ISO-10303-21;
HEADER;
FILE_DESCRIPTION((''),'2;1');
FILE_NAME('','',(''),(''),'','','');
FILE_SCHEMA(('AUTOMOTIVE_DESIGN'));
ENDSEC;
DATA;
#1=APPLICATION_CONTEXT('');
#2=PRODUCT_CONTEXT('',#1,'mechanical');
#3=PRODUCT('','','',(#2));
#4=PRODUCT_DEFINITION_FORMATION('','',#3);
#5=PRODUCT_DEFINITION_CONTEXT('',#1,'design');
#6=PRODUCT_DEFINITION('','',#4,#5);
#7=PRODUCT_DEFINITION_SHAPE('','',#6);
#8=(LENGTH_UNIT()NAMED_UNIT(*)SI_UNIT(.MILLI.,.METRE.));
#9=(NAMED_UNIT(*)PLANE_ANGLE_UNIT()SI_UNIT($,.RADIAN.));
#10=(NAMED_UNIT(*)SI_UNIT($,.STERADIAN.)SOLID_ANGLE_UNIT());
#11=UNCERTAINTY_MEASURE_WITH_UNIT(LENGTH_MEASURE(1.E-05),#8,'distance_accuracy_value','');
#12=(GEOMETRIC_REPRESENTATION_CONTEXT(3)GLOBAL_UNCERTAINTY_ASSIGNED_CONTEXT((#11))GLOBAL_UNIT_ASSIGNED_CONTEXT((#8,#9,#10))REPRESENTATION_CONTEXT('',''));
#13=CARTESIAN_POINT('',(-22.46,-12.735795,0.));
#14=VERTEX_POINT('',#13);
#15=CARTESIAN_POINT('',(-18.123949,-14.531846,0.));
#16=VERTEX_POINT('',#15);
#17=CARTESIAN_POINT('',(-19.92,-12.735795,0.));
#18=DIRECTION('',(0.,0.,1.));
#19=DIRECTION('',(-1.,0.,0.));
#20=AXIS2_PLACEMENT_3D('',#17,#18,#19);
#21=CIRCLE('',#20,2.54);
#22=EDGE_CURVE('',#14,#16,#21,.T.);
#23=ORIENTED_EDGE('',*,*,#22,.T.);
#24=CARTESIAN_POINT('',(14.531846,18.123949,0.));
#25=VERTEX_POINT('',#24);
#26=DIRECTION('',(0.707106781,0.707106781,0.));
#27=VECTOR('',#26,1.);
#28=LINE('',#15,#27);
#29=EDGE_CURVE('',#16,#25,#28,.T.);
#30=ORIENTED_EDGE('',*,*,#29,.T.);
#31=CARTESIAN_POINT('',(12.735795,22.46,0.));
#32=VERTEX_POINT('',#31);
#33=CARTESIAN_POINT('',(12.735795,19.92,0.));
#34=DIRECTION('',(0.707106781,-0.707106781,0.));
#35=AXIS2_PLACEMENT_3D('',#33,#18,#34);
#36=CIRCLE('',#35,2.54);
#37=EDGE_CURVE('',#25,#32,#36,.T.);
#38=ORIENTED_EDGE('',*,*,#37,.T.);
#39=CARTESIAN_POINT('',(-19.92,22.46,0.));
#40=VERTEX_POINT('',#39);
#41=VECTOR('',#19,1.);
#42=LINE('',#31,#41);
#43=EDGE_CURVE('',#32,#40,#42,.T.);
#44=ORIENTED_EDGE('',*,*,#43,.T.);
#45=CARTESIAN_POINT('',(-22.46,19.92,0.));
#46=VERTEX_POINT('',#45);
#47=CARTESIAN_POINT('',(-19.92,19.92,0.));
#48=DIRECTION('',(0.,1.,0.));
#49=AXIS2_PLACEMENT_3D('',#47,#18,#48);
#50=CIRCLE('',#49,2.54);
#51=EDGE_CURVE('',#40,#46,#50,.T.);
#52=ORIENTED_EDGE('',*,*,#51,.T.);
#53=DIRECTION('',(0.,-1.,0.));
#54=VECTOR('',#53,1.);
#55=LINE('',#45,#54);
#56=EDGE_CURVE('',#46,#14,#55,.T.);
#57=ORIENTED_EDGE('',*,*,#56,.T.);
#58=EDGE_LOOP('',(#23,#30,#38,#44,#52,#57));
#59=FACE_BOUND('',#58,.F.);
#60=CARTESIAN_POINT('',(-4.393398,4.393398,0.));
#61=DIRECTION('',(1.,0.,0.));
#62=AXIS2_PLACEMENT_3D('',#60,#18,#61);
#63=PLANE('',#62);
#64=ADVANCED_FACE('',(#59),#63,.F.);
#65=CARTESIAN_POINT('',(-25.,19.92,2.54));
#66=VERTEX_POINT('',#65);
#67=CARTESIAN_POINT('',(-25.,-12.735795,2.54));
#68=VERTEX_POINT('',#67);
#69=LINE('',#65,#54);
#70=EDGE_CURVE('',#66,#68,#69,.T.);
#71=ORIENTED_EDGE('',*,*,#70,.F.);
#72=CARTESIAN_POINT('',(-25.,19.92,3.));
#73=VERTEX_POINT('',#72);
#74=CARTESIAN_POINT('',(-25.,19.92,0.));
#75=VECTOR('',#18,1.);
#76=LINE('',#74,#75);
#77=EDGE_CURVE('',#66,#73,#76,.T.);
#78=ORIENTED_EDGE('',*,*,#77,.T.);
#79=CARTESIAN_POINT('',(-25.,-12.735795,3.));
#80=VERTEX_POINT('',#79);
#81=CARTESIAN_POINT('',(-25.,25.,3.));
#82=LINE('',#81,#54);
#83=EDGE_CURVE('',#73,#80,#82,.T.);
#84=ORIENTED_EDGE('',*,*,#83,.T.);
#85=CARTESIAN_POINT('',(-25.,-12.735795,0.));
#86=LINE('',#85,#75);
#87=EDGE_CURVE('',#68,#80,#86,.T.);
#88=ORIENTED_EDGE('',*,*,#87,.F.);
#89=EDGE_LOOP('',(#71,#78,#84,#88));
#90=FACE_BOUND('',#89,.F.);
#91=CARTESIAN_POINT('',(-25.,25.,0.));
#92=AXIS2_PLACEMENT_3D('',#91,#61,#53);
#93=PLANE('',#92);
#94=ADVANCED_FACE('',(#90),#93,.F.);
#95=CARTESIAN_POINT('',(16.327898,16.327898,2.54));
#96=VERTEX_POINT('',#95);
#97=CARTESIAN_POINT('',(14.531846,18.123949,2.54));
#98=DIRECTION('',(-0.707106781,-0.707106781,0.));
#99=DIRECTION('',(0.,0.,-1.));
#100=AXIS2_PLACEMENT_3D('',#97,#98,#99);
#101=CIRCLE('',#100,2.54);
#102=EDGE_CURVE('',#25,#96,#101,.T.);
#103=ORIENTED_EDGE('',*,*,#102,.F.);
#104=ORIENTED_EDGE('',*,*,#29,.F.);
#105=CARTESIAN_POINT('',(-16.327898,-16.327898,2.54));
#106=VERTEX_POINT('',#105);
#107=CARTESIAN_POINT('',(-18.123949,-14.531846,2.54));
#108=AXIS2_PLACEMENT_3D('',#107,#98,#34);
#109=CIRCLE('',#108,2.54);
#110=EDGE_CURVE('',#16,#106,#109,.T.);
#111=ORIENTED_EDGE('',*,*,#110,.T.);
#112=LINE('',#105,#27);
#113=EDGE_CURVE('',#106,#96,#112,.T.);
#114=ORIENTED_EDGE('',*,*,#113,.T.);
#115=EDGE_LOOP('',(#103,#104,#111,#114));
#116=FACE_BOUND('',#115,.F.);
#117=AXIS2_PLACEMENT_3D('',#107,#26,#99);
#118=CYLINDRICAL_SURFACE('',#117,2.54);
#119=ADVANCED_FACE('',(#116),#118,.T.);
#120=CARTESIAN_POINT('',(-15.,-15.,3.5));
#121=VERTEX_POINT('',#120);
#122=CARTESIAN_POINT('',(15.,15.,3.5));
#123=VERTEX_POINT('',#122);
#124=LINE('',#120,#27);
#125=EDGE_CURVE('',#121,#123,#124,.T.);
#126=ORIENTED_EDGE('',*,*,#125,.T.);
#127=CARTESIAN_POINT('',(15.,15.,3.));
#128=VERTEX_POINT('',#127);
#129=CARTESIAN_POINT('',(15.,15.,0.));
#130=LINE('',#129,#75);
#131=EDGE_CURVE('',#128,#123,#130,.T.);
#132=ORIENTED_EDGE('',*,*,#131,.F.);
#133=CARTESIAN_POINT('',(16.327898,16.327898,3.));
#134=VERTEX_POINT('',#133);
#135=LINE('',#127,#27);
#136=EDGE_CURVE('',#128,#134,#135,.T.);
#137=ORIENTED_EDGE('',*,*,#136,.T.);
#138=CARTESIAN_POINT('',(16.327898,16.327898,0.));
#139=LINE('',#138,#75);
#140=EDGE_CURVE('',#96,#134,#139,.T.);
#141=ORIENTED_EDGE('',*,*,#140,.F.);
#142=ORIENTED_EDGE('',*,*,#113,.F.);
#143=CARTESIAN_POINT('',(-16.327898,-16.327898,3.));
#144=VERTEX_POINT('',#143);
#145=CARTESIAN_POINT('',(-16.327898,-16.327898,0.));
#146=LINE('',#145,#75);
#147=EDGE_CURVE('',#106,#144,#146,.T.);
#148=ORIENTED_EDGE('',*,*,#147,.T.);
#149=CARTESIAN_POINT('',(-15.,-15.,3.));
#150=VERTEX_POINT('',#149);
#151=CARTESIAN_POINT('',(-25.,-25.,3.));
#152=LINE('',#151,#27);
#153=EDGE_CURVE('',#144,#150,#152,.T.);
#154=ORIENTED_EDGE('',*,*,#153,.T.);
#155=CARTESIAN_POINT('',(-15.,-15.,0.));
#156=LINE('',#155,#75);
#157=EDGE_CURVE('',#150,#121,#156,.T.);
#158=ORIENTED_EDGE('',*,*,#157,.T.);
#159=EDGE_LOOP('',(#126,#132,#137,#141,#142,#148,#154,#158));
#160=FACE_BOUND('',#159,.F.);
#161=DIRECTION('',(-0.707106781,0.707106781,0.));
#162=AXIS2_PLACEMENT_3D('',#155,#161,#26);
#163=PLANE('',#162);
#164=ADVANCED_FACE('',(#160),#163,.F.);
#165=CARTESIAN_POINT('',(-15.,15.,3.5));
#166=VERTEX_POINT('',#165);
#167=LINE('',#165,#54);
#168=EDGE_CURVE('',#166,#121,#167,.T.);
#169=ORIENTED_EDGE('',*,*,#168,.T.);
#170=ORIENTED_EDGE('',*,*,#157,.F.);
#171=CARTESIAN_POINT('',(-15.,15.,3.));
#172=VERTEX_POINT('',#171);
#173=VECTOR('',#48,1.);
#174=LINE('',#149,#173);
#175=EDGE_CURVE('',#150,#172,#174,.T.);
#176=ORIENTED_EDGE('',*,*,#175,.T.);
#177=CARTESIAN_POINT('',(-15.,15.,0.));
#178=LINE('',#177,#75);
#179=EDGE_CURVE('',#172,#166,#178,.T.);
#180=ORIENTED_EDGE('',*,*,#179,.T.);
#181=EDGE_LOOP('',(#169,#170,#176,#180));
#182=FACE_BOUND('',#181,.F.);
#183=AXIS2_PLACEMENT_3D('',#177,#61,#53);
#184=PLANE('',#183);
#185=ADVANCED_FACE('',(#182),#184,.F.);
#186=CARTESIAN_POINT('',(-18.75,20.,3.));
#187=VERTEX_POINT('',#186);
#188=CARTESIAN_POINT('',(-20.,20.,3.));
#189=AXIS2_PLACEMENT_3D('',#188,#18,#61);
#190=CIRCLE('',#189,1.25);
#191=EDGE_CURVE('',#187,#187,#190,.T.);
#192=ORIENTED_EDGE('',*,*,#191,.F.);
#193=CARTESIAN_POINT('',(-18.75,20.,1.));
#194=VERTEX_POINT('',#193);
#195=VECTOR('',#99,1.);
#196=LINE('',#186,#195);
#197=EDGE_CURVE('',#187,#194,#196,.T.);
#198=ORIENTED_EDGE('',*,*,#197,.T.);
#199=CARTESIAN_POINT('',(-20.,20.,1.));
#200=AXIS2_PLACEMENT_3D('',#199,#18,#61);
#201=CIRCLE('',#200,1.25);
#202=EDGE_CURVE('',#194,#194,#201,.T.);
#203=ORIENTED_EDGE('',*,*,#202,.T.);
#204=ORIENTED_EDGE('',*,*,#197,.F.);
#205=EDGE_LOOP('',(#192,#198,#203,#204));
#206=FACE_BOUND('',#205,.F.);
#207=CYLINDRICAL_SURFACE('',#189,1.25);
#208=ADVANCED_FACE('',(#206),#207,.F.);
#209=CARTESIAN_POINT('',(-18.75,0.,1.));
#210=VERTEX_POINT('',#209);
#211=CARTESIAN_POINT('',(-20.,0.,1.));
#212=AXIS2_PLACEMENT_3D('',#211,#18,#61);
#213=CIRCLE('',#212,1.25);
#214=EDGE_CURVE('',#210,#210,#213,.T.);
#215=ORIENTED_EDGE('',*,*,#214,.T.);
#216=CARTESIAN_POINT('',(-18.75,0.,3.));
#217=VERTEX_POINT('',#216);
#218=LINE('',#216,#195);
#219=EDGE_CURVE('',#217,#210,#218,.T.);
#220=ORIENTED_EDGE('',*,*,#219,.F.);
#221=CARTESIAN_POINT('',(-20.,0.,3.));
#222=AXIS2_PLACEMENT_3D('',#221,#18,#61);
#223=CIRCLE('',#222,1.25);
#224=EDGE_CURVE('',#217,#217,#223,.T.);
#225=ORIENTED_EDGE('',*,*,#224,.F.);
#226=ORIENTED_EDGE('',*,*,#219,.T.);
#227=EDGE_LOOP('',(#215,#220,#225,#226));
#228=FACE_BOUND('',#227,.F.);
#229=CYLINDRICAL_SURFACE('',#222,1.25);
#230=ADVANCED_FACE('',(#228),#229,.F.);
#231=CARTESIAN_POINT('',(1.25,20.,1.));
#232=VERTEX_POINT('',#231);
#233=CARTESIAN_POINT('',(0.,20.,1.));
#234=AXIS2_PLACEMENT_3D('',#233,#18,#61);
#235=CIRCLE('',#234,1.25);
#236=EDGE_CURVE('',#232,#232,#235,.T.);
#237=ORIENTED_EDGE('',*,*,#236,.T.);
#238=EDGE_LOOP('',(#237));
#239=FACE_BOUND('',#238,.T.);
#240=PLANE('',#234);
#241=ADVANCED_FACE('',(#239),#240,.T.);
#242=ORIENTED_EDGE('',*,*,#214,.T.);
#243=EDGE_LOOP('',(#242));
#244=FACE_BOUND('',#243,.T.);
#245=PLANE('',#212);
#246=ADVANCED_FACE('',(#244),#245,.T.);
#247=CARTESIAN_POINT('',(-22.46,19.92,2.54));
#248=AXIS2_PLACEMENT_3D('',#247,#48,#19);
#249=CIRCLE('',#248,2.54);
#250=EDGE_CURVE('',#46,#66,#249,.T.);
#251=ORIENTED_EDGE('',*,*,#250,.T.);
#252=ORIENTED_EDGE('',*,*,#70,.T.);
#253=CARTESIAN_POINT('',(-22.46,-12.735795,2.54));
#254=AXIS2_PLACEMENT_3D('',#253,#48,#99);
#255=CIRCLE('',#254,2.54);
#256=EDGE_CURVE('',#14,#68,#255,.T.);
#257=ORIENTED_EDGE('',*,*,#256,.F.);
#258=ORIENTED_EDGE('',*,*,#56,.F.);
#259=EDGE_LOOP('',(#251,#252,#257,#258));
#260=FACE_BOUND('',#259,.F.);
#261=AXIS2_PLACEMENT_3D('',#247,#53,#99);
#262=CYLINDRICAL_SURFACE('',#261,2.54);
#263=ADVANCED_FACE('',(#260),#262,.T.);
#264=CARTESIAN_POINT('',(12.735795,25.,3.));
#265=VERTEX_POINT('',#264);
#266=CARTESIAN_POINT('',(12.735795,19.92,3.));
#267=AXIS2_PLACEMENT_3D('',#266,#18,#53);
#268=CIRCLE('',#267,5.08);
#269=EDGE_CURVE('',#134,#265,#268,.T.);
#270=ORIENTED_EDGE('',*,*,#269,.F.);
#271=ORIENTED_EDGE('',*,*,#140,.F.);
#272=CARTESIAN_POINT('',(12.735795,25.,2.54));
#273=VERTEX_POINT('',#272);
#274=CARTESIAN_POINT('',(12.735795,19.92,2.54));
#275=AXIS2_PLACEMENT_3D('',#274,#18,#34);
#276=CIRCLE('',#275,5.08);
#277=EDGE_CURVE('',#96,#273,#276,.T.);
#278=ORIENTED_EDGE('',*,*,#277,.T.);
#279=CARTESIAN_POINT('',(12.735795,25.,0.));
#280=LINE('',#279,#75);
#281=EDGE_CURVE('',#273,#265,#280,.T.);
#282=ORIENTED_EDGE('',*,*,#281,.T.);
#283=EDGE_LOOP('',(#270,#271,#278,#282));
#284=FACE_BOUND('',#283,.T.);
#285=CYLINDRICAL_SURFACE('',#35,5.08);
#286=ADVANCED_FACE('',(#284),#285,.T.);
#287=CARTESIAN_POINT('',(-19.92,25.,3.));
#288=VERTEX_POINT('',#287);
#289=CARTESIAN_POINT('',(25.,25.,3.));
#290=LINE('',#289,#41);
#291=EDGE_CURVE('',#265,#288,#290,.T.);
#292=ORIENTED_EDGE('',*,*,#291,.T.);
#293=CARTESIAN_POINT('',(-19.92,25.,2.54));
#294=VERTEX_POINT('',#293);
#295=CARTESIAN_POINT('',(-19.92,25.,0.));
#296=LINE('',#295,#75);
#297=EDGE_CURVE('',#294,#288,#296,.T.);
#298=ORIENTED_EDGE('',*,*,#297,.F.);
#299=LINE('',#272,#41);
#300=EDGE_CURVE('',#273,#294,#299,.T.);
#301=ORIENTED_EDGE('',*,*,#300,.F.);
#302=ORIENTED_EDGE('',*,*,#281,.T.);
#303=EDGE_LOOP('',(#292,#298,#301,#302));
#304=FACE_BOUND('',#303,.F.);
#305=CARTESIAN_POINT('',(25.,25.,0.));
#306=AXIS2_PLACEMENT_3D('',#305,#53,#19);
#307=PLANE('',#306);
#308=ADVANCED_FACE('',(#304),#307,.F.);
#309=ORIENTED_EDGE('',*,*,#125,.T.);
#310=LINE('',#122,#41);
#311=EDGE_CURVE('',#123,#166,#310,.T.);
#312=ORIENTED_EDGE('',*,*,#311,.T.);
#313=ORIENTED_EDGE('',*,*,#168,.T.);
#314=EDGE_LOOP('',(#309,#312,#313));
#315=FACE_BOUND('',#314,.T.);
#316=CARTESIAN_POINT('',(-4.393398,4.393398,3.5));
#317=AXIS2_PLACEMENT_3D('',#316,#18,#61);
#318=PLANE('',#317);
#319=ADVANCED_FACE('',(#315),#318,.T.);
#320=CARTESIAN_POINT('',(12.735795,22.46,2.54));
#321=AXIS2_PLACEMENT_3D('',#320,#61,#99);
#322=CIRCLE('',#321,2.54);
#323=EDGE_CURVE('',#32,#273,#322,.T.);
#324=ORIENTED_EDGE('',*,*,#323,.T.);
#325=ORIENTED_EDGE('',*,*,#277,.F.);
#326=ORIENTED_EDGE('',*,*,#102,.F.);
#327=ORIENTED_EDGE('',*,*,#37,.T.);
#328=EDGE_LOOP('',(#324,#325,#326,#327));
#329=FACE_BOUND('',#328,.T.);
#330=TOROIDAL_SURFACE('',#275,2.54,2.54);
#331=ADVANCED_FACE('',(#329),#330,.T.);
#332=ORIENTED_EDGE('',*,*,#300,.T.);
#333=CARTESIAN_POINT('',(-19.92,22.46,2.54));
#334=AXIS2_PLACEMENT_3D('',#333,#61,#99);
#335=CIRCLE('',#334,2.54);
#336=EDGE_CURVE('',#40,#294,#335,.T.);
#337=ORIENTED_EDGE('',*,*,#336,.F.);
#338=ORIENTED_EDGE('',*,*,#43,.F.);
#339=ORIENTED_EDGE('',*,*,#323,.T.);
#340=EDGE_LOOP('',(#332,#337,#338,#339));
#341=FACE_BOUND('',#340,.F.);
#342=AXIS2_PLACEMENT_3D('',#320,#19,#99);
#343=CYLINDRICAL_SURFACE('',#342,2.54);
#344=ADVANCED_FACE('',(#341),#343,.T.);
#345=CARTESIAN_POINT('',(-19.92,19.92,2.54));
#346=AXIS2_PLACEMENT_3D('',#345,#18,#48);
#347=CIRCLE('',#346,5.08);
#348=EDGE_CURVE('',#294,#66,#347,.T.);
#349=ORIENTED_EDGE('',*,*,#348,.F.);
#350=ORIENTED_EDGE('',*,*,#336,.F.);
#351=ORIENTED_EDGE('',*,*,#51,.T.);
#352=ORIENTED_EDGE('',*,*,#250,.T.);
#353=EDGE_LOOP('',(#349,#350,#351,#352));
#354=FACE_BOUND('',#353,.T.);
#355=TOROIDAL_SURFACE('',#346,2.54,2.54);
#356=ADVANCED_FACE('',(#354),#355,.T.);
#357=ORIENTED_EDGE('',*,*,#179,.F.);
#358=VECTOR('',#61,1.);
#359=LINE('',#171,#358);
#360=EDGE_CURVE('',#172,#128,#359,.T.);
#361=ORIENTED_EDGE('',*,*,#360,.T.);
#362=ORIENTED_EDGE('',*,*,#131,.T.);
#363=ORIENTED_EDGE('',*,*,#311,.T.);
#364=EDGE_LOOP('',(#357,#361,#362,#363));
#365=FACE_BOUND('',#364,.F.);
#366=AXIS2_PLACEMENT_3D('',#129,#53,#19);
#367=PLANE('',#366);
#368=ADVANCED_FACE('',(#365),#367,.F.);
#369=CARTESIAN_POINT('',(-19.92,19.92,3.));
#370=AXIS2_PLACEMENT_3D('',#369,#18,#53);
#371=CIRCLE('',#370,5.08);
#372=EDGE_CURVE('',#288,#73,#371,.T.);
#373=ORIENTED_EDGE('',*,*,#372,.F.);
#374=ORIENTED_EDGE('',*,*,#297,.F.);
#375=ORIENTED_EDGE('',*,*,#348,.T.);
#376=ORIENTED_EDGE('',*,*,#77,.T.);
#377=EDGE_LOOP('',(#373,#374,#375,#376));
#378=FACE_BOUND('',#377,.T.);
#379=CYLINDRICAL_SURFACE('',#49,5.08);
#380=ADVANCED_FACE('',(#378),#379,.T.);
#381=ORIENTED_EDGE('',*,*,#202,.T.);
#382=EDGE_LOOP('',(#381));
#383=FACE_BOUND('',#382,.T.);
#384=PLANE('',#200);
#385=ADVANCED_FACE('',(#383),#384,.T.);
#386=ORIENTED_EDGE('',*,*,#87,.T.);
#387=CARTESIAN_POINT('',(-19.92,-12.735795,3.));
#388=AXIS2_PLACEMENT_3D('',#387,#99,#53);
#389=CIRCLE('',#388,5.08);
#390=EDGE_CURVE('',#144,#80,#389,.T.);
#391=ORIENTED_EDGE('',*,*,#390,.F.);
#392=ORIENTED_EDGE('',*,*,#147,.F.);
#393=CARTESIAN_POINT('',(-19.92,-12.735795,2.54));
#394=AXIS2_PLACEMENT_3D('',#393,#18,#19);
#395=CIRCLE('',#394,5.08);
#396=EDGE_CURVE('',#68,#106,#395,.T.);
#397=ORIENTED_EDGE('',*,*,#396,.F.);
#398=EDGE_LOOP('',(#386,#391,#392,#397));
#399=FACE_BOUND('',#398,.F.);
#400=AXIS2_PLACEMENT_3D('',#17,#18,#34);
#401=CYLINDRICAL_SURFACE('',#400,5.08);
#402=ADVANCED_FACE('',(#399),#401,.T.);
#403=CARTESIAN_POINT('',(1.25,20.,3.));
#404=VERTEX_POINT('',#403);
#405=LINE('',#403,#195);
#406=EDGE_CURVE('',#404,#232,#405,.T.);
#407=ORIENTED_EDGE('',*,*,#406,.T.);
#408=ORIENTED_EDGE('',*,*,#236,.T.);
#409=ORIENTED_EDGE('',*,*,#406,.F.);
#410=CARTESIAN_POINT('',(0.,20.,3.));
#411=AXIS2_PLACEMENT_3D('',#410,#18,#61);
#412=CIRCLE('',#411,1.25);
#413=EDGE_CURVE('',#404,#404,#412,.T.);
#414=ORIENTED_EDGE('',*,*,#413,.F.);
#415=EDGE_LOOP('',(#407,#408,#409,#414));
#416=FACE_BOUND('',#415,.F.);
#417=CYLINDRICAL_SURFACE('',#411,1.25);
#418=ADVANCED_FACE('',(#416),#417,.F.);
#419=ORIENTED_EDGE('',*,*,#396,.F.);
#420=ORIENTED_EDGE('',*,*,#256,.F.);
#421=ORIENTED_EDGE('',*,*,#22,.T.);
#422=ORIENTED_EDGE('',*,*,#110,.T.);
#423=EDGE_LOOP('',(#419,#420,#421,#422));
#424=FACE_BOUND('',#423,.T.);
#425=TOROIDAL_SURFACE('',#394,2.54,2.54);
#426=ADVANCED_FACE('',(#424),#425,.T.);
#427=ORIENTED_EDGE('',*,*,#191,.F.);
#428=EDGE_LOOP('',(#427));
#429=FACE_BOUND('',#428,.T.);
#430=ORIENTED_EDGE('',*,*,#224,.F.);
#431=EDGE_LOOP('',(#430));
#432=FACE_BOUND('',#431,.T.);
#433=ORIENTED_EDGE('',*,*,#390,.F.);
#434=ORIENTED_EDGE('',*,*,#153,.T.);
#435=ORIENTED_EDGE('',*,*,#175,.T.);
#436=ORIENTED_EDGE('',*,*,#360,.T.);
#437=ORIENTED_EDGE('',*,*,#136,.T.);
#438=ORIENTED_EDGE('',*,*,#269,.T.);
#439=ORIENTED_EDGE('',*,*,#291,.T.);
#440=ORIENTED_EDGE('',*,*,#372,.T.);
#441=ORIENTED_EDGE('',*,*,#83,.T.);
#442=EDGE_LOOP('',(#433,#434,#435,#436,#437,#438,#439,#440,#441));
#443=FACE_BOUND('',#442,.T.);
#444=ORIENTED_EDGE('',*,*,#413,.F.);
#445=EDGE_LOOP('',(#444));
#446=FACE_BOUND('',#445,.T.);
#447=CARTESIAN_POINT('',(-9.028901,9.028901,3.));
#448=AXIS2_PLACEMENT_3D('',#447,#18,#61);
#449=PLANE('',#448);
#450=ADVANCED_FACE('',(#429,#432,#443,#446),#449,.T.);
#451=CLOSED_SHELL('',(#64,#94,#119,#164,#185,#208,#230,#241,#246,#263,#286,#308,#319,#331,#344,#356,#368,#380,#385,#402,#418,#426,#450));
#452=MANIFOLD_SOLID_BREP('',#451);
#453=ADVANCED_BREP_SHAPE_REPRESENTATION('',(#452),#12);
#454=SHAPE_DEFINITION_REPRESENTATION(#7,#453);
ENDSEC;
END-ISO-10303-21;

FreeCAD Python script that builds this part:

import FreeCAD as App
import Part
import Sketcher

V = App.Vector
Q = App.Units.Quantity


def edges_at(feature, points):
    """Names of the edges that pass closest to the given points."""
    edges = feature.Shape.Edges
    near = lambda p: min(range(len(edges)), key=lambda i: edges[i].distToShape(Part.Vertex(*p))[0])
    return sorted({f"Edge{near(p) + 1}" for p in points})

doc = App.newDocument("Part")
body = doc.addObject("PartDesign::Body", "Body")

# Sketch on XY plane
sketch1 = body.newObject("Sketcher::SketchObject", "Sketch")
sketch1.AttachmentSupport = (doc.getObject("XY_Plane"), [""])
sketch1.MapMode = "FlatFace"
sketch1.addGeometry([
    Part.LineSegment(V(15, 15, 0), V(25, 25, 0)),  # 0
    Part.LineSegment(V(25, 25, 0), V(-25, 25, 0)),  # 1
    Part.LineSegment(V(-25, 25, 0), V(-25, -25, 0)),  # 2
    Part.LineSegment(V(-25, -25, 0), V(-15, -15, 0)),  # 3
    Part.LineSegment(V(-15, -15, 0), V(-15, 15, 0)),  # 4
    Part.LineSegment(V(-15, 15, 0), V(15, 15, 0)),  # 5
], False)
sketch1.addConstraint([
    Sketcher.Constraint("Coincident", 0, 2, 1, 1),
    Sketcher.Constraint("Coincident", 1, 2, 2, 1),
    Sketcher.Constraint("Coincident", 2, 2, 3, 1),
    Sketcher.Constraint("Coincident", 3, 2, 4, 1),
    Sketcher.Constraint("Coincident", 4, 2, 5, 1),
    Sketcher.Constraint("Coincident", 5, 2, 0, 1),
    Sketcher.Constraint("Horizontal", 1),
    Sketcher.Constraint("Vertical", 2),
    Sketcher.Constraint("Vertical", 4),
    Sketcher.Constraint("Horizontal", 5),
    Sketcher.Constraint("Symmetric", 0, 2, 2, 2, -1, 1),
    Sketcher.Constraint("Symmetric", 3, 2, 5, 2, -1, 1),
    Sketcher.Constraint("Equal", 1, 2),
    Sketcher.Constraint("Equal", 5, 4),
    Sketcher.Constraint("DistanceX", 1, 2, 1, 1, Q("50 mm")),
    Sketcher.Constraint("DistanceX", 5, 1, 5, 2, Q("30 mm")),
])
pad1 = body.newObject("PartDesign::Pad", "Pad")
pad1.Profile = sketch1
pad1.Length = 3

# Sketch on XY plane
sketch2 = body.newObject("Sketcher::SketchObject", "Sketch001")
sketch2.AttachmentSupport = (doc.getObject("XY_Plane"), [""])
sketch2.MapMode = "FlatFace"
sketch2.addGeometry([
    Part.LineSegment(V(-15, -15, 0), V(15, 15, 0)),
    Part.LineSegment(V(15, 15, 0), V(-15, 15, 0)),
    Part.LineSegment(V(-15, 15, 0), V(-15, -15, 0)),
], False)
sketch2.addConstraint([
    Sketcher.Constraint("Coincident", 0, 2, 1, 1),
    Sketcher.Constraint("Coincident", 1, 2, 2, 1),
    Sketcher.Constraint("Coincident", 2, 2, 0, 1),
    Sketcher.Constraint("Horizontal", 1),
    Sketcher.Constraint("Vertical", 2),
    Sketcher.Constraint("Symmetric", 0, 2, 2, 2, -1, 1),
    Sketcher.Constraint("Equal", 1, 2),
    Sketcher.Constraint("DistanceX", 1, 2, 1, 1, Q("30 mm")),
])
pad2 = body.newObject("PartDesign::Pad", "Pad001")
pad2.Profile = sketch2
pad2.Length = 3.5

# Sketch on XY plane
sketch3 = body.newObject("Sketcher::SketchObject", "Sketch002")
sketch3.AttachmentSupport = (doc.getObject("XY_Plane"), [""])
sketch3.MapMode = "FlatFace"
sketch3.AttachmentOffset = App.Placement(V(0, 0, 3), App.Rotation())
sketch3.addGeometry([
    Part.Circle(V(-20, 20, 0), V(0, 0, 1), 1.2),
    Part.Circle(V(0, 20, 0), V(0, 0, 1), 1.2),
    Part.Circle(V(-20, 0, 0), V(0, 0, 1), 1.2),
], False)
sketch3.addConstraint([
    Sketcher.Constraint("Equal", 0, 1),
    Sketcher.Constraint("Equal", 1, 2),
    Sketcher.Constraint("PointOnObject", 1, 3, -2),
    Sketcher.Constraint("PointOnObject", 2, 3, -1),
    Sketcher.Constraint("Horizontal", 0, 3, 1, 3),
    Sketcher.Constraint("Vertical", 0, 3, 2, 3),
    Sketcher.Constraint("Diameter", 0, Q("2.5 mm")),
    Sketcher.Constraint("DistanceX", 0, 3, -1, 1, Q("20 mm")),
    Sketcher.Constraint("DistanceY", -1, 1, 0, 3, Q("20 mm")),
])
pocket1 = body.newObject("PartDesign::Pocket", "Pocket")
pocket1.Profile = sketch3
pocket1.Length = 2
doc.recompute()

fillet = body.newObject("PartDesign::Fillet", "Fillet")
fillet.Base = (pocket1, edges_at(pocket1, [(-25, 25, 1.5), (25, 25, 1.5), (-25, -25, 1.5)]))
fillet.Radius = 5.08
doc.recompute()

fillet2 = body.newObject("PartDesign::Fillet", "Fillet001")
fillet2.Base = (fillet, edges_at(fillet, [
    (-3.592, 25, 0),
    (17.429, 21.864, 0),
    (-23.512, 23.512, 0),
    (0, 0, 0),
    (-25, 3.592, 0),
    (-21.864, -17.429, 0),
]))
fillet2.Radius = 2.54

doc.recompute()
